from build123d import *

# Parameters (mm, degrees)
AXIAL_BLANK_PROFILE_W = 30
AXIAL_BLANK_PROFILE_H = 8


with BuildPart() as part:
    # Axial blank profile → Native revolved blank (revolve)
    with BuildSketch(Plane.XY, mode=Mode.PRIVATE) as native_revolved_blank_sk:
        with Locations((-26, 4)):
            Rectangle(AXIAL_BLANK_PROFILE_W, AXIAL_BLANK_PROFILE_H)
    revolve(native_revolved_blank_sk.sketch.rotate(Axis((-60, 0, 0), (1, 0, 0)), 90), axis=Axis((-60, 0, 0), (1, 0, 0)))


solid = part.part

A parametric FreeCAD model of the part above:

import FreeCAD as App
import Part
import Sketcher

V = App.Vector

doc = App.newDocument("Part")
body = doc.addObject("PartDesign::Body", "Body")

# Sketch on XY plane
sketch1 = doc.addObject("Sketcher::SketchObject", "Sketch")
body.addObject(sketch1)
sketch1.AttachmentSupport = (doc.XY_Plane, [""])
sketch1.MapMode = "FlatFace"
sketch1.addGeometry(Part.LineSegment(V(-41, 8, 0), V(-41, 0, 0)), False)
sketch1.addGeometry(Part.LineSegment(V(-41, 0, 0), V(-11, 0, 0)), False)
sketch1.addGeometry(Part.LineSegment(V(-11, 0, 0), V(-11, 8, 0)), False)
sketch1.addGeometry(Part.LineSegment(V(-11, 8, 0), V(-41, 8, 0)), False)
sketch1.addConstraint(Sketcher.Constraint("Coincident", 0, 2, 1, 1))
sketch1.addConstraint(Sketcher.Constraint("Coincident", 1, 2, 2, 1))
sketch1.addConstraint(Sketcher.Constraint("Coincident", 2, 2, 3, 1))
sketch1.addConstraint(Sketcher.Constraint("Coincident", 3, 2, 0, 1))
sketch1.addConstraint(Sketcher.Constraint("Vertical", 0))
sketch1.addConstraint(Sketcher.Constraint("Horizontal", 1))
sketch1.addConstraint(Sketcher.Constraint("Vertical", 2))
sketch1.addConstraint(Sketcher.Constraint("Horizontal", 3))
sketch1.addConstraint(Sketcher.Constraint("PointOnObject", 0, 2, -1))
sketch1.addConstraint(Sketcher.Constraint("DistanceX", 1, 1, 1, 2, 30.0))
sketch1.addConstraint(Sketcher.Constraint("DistanceY", 0, 2, 0, 1, 8.0))
sketch1.addConstraint(Sketcher.Constraint("DistanceX", 0, 2, -1, 1, 41.0))
revolution = doc.addObject("PartDesign::Revolution", "Revolution")
body.addObject(revolution)
revolution.Profile = sketch1
revolution.ReferenceAxis = (sketch1, ["H_Axis"])
revolution.Angle = 360

doc.recompute()
